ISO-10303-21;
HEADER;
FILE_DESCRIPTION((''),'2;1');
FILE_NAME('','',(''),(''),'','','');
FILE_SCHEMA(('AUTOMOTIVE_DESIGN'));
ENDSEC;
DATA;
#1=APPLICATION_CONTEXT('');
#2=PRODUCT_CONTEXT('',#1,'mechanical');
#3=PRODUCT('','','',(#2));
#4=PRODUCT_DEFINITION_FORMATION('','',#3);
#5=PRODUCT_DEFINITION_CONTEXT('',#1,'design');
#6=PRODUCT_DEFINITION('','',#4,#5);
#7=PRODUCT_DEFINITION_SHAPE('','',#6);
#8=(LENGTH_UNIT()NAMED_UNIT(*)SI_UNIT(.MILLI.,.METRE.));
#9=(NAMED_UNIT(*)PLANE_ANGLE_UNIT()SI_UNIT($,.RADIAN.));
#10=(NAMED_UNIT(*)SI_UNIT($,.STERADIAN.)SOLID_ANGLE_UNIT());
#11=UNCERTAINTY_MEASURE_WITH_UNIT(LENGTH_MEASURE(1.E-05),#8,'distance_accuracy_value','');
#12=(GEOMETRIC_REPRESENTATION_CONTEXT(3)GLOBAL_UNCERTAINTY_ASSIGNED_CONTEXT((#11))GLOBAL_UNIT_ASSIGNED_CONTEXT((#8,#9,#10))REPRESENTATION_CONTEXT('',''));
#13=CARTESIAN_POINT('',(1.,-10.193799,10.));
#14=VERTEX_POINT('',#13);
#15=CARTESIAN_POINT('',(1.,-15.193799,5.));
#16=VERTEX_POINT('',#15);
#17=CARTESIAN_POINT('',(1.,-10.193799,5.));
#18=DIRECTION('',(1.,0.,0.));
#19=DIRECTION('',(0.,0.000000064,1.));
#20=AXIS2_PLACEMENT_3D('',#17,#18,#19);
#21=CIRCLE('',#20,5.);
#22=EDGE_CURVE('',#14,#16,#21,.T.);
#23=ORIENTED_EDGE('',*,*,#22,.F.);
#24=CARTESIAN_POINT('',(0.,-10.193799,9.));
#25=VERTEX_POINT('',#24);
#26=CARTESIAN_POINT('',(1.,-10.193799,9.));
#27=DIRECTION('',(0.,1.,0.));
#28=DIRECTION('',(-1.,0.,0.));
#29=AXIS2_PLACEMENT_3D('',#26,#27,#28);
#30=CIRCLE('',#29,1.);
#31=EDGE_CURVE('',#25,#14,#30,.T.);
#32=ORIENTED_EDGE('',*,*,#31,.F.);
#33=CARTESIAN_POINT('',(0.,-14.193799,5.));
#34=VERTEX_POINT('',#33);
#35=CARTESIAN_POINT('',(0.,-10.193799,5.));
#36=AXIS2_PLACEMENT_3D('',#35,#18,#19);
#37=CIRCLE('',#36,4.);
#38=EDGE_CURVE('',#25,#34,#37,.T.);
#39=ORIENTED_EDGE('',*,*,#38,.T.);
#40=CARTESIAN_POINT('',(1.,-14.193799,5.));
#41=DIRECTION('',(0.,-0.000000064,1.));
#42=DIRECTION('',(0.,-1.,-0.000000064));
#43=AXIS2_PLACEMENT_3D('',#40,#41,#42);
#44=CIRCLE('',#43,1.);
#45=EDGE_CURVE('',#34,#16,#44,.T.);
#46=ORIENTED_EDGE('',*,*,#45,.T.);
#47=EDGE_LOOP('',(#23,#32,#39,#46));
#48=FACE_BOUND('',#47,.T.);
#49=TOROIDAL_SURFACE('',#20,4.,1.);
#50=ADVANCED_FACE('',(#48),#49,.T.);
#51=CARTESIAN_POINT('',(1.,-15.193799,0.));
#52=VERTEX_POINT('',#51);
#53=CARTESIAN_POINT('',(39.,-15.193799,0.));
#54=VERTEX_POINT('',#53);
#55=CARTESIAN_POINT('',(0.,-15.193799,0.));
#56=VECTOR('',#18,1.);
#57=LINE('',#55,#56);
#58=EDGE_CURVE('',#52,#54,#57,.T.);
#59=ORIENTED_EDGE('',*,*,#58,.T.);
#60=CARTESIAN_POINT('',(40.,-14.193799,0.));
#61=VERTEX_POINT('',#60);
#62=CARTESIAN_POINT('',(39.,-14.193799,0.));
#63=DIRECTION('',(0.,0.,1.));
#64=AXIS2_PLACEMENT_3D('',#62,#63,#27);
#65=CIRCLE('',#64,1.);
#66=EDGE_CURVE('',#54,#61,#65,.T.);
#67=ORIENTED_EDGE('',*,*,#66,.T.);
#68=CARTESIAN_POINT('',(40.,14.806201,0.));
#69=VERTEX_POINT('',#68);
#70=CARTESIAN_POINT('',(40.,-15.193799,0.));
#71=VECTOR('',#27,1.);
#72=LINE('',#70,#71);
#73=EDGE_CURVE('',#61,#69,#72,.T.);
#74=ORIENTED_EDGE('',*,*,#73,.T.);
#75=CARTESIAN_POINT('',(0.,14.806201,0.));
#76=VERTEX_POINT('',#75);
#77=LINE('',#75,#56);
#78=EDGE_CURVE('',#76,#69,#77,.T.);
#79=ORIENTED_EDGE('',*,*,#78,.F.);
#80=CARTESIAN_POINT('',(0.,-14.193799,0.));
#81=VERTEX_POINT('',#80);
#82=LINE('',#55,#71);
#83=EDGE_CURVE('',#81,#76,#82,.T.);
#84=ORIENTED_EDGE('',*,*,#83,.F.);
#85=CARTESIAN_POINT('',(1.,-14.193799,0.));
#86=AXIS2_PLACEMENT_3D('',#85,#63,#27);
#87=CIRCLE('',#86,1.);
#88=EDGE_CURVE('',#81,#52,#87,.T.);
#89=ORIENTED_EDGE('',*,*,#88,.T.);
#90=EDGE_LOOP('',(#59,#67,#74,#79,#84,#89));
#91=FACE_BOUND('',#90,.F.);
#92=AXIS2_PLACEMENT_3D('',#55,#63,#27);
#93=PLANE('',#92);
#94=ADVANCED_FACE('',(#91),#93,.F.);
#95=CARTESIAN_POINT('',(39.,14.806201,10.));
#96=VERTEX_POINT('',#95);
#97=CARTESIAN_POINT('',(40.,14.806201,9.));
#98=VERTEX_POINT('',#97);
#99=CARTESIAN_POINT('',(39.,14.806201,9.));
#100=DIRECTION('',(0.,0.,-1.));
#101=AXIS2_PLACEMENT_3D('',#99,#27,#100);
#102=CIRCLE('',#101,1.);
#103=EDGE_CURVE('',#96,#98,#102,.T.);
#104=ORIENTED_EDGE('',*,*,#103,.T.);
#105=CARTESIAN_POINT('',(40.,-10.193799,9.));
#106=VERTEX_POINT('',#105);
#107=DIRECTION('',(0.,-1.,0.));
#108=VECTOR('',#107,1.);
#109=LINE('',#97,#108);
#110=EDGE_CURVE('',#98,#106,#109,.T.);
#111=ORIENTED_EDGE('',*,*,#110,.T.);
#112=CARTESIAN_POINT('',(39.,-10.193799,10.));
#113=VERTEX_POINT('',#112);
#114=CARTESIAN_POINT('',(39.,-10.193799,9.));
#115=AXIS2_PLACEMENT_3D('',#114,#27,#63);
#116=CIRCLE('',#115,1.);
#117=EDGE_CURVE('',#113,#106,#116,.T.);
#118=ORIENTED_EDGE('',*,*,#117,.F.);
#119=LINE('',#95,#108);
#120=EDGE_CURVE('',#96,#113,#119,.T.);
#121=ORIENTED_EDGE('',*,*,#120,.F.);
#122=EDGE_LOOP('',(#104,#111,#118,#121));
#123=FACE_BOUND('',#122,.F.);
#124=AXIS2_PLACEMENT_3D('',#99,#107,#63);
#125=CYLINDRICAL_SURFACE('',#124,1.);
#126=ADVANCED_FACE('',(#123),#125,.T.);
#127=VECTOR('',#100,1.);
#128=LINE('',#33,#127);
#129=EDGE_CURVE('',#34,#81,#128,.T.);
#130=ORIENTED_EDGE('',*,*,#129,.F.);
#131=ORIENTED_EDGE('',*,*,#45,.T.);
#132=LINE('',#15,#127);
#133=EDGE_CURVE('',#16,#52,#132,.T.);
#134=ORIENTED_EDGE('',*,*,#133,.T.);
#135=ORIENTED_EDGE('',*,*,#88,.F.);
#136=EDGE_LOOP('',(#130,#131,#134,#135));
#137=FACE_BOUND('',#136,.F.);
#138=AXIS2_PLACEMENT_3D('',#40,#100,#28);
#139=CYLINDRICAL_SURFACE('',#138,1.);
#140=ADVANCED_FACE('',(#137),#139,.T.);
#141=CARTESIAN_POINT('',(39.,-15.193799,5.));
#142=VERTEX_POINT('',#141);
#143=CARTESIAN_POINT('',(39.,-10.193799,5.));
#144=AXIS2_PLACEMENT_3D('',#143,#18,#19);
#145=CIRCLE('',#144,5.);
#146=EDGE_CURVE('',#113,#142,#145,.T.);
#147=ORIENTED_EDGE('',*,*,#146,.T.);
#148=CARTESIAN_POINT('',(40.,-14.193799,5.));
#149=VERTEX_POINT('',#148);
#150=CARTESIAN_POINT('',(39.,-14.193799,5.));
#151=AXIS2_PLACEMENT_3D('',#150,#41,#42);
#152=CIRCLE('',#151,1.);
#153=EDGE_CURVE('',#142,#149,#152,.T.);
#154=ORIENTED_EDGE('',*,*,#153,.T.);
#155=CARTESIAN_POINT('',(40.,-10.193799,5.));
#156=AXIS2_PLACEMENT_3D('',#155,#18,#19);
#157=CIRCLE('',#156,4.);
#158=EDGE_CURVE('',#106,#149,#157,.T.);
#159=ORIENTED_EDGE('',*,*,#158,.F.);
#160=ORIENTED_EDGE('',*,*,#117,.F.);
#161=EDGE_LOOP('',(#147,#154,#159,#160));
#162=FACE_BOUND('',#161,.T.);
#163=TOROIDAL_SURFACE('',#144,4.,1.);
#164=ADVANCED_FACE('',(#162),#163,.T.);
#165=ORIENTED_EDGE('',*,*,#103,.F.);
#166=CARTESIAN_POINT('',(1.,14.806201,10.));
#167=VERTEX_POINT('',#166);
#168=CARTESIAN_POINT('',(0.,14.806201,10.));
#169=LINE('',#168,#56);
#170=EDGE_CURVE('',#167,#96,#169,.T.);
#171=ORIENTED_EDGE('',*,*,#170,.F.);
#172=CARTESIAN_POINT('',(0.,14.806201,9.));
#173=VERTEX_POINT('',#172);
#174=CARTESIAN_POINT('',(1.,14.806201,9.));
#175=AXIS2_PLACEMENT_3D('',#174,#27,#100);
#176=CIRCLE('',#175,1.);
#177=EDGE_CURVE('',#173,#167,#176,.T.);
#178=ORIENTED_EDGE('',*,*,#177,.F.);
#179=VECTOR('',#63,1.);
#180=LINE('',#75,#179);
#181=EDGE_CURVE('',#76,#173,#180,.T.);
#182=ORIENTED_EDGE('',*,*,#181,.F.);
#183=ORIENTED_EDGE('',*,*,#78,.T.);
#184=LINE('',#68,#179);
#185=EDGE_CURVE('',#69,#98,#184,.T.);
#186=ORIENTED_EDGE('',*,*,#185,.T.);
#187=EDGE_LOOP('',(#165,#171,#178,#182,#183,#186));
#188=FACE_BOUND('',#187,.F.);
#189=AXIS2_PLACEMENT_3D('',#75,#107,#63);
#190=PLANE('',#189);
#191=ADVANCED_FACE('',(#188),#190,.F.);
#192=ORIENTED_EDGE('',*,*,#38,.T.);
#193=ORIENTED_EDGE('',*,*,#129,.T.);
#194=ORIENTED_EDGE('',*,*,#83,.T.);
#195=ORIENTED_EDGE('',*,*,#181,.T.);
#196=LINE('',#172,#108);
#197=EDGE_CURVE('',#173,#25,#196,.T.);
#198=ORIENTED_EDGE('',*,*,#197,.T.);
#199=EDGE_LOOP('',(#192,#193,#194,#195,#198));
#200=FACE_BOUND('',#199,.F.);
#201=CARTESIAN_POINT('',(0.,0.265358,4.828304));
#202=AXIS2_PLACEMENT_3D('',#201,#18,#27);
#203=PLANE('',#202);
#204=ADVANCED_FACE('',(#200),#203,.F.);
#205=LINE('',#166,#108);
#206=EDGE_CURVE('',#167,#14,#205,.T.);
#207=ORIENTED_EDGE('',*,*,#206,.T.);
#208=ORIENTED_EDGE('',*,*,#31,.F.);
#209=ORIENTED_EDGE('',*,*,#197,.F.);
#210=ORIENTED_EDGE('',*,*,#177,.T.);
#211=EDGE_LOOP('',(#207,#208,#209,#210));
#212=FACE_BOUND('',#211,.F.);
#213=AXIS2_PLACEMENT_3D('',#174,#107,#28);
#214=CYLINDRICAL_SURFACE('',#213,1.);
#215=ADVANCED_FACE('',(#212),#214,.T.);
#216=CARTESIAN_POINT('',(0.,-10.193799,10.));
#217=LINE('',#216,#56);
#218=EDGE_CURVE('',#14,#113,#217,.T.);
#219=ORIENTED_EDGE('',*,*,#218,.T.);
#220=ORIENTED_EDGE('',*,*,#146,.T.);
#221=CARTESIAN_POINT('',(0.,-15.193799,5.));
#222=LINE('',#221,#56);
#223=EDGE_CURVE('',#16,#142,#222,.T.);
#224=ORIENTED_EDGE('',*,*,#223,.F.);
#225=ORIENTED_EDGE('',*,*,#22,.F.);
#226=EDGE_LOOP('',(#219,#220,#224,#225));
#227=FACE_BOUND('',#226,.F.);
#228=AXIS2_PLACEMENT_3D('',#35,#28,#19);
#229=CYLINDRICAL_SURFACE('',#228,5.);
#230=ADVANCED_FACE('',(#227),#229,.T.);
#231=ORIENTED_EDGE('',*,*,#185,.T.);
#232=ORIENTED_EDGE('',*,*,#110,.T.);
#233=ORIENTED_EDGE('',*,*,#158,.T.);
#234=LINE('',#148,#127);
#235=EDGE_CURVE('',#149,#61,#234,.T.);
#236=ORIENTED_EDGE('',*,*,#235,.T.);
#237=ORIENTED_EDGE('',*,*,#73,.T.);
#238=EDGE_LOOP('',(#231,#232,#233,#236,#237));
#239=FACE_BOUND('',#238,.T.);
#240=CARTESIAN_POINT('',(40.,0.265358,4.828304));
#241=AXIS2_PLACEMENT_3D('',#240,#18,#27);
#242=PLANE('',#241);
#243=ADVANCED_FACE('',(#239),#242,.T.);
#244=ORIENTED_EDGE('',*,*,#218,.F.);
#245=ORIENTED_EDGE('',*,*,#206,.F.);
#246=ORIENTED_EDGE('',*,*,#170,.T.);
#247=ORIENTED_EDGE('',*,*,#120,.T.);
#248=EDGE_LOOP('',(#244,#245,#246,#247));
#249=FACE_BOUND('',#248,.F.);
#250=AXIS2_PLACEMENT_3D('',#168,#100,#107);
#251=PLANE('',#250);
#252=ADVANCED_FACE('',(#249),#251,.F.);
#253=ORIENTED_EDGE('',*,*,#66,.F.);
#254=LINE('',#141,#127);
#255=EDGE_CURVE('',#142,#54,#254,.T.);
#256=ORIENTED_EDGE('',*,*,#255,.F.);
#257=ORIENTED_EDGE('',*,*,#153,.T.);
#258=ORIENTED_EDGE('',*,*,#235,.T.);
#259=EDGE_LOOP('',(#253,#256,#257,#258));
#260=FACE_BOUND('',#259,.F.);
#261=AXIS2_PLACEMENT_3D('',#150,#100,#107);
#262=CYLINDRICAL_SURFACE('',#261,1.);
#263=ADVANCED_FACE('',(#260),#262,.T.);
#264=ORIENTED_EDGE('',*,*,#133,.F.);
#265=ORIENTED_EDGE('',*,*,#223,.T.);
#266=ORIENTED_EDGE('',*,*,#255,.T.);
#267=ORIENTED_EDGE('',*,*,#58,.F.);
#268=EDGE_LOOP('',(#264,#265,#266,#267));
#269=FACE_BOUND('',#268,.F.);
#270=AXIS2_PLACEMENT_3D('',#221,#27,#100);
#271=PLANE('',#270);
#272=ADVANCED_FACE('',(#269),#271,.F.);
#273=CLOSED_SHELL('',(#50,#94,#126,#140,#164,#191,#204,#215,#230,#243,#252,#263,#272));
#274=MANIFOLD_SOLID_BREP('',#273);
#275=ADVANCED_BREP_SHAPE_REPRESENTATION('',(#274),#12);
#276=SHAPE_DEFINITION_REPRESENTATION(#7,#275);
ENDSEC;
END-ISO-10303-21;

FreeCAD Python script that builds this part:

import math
import FreeCAD as App
import Part
import Sketcher

V = App.Vector
Q = App.Units.Quantity


def edges_at(feature, points):
    """Names of the edges that pass closest to the given points."""
    edges = feature.Shape.Edges
    near = lambda p: min(range(len(edges)), key=lambda i: edges[i].distToShape(Part.Vertex(*p))[0])
    return sorted({f"Edge{near(p) + 1}" for p in points})

doc = App.newDocument("Part")
body = doc.addObject("PartDesign::Body", "Body")

# Sketch on YZ plane
sketch1 = body.newObject("Sketcher::SketchObject", "Sketch")
sketch1.AttachmentSupport = (doc.getObject("YZ_Plane"), [""])
sketch1.MapMode = "FlatFace"
sketch1.addGeometry(Part.LineSegment(V(-15.193799, 5, 0), V(-15.193799, 0, 0)), False)
sketch1.addGeometry(Part.LineSegment(V(-15.193799, 0, 0), V(14.806201, 0, 0)), False)
sketch1.addGeometry(Part.LineSegment(V(14.806201, 0, 0), V(14.806201, 10, 0)), False)
sketch1.addGeometry(Part.LineSegment(V(14.806201, 10, 0), V(-10.193799, 10, 0)), False)
sketch1.addGeometry(Part.ArcOfCircle(Part.Circle(V(-10.193799, 5, 0), V(0, 0, 1), 5), math.radians(89.999996), math.radians(180.000004)), False)
sketch1.addConstraint(Sketcher.Constraint("Coincident", 0, 2, 1, 1))
sketch1.addConstraint(Sketcher.Constraint("Coincident", 1, 2, 2, 1))
sketch1.addConstraint(Sketcher.Constraint("Coincident", 2, 2, 3, 1))
sketch1.addConstraint(Sketcher.Constraint("Tangent", 3, 2, 4, 1))
sketch1.addConstraint(Sketcher.Constraint("Tangent", 4, 2, 0, 1))
sketch1.addConstraint(Sketcher.Constraint("Vertical", 0))
sketch1.addConstraint(Sketcher.Constraint("Horizontal", 1))
sketch1.addConstraint(Sketcher.Constraint("Vertical", 2))
sketch1.addConstraint(Sketcher.Constraint("Horizontal", 3))
sketch1.addConstraint(Sketcher.Constraint("PointOnObject", 0, 2, -1))
sketch1.addConstraint(Sketcher.Constraint("Radius", 4, Q("5 mm")))
sketch1.addConstraint(Sketcher.Constraint("DistanceX", 1, 1, 1, 2, Q("30 mm")))
sketch1.addConstraint(Sketcher.Constraint("DistanceY", 0, 2, 0, 1, Q("5 mm")))
sketch1.addConstraint(Sketcher.Constraint("DistanceX", 4, 3, -1, 1, Q("10.193799 mm")))
pad1 = body.newObject("PartDesign::Pad", "Pad")
pad1.Profile = sketch1
pad1.Length = 40
doc.recompute()

fillet = body.newObject("PartDesign::Fillet", "Fillet")
fillet.Base = (pad1, edges_at(pad1, [(40, 2.306, 10)]))
fillet.Radius = 1
doc.recompute()

fillet2 = body.newObject("PartDesign::Fillet", "Fillet001")
fillet2.Base = (fillet, edges_at(fillet, [(0, 2.306, 10)]))
fillet2.Radius = 1

doc.recompute()
